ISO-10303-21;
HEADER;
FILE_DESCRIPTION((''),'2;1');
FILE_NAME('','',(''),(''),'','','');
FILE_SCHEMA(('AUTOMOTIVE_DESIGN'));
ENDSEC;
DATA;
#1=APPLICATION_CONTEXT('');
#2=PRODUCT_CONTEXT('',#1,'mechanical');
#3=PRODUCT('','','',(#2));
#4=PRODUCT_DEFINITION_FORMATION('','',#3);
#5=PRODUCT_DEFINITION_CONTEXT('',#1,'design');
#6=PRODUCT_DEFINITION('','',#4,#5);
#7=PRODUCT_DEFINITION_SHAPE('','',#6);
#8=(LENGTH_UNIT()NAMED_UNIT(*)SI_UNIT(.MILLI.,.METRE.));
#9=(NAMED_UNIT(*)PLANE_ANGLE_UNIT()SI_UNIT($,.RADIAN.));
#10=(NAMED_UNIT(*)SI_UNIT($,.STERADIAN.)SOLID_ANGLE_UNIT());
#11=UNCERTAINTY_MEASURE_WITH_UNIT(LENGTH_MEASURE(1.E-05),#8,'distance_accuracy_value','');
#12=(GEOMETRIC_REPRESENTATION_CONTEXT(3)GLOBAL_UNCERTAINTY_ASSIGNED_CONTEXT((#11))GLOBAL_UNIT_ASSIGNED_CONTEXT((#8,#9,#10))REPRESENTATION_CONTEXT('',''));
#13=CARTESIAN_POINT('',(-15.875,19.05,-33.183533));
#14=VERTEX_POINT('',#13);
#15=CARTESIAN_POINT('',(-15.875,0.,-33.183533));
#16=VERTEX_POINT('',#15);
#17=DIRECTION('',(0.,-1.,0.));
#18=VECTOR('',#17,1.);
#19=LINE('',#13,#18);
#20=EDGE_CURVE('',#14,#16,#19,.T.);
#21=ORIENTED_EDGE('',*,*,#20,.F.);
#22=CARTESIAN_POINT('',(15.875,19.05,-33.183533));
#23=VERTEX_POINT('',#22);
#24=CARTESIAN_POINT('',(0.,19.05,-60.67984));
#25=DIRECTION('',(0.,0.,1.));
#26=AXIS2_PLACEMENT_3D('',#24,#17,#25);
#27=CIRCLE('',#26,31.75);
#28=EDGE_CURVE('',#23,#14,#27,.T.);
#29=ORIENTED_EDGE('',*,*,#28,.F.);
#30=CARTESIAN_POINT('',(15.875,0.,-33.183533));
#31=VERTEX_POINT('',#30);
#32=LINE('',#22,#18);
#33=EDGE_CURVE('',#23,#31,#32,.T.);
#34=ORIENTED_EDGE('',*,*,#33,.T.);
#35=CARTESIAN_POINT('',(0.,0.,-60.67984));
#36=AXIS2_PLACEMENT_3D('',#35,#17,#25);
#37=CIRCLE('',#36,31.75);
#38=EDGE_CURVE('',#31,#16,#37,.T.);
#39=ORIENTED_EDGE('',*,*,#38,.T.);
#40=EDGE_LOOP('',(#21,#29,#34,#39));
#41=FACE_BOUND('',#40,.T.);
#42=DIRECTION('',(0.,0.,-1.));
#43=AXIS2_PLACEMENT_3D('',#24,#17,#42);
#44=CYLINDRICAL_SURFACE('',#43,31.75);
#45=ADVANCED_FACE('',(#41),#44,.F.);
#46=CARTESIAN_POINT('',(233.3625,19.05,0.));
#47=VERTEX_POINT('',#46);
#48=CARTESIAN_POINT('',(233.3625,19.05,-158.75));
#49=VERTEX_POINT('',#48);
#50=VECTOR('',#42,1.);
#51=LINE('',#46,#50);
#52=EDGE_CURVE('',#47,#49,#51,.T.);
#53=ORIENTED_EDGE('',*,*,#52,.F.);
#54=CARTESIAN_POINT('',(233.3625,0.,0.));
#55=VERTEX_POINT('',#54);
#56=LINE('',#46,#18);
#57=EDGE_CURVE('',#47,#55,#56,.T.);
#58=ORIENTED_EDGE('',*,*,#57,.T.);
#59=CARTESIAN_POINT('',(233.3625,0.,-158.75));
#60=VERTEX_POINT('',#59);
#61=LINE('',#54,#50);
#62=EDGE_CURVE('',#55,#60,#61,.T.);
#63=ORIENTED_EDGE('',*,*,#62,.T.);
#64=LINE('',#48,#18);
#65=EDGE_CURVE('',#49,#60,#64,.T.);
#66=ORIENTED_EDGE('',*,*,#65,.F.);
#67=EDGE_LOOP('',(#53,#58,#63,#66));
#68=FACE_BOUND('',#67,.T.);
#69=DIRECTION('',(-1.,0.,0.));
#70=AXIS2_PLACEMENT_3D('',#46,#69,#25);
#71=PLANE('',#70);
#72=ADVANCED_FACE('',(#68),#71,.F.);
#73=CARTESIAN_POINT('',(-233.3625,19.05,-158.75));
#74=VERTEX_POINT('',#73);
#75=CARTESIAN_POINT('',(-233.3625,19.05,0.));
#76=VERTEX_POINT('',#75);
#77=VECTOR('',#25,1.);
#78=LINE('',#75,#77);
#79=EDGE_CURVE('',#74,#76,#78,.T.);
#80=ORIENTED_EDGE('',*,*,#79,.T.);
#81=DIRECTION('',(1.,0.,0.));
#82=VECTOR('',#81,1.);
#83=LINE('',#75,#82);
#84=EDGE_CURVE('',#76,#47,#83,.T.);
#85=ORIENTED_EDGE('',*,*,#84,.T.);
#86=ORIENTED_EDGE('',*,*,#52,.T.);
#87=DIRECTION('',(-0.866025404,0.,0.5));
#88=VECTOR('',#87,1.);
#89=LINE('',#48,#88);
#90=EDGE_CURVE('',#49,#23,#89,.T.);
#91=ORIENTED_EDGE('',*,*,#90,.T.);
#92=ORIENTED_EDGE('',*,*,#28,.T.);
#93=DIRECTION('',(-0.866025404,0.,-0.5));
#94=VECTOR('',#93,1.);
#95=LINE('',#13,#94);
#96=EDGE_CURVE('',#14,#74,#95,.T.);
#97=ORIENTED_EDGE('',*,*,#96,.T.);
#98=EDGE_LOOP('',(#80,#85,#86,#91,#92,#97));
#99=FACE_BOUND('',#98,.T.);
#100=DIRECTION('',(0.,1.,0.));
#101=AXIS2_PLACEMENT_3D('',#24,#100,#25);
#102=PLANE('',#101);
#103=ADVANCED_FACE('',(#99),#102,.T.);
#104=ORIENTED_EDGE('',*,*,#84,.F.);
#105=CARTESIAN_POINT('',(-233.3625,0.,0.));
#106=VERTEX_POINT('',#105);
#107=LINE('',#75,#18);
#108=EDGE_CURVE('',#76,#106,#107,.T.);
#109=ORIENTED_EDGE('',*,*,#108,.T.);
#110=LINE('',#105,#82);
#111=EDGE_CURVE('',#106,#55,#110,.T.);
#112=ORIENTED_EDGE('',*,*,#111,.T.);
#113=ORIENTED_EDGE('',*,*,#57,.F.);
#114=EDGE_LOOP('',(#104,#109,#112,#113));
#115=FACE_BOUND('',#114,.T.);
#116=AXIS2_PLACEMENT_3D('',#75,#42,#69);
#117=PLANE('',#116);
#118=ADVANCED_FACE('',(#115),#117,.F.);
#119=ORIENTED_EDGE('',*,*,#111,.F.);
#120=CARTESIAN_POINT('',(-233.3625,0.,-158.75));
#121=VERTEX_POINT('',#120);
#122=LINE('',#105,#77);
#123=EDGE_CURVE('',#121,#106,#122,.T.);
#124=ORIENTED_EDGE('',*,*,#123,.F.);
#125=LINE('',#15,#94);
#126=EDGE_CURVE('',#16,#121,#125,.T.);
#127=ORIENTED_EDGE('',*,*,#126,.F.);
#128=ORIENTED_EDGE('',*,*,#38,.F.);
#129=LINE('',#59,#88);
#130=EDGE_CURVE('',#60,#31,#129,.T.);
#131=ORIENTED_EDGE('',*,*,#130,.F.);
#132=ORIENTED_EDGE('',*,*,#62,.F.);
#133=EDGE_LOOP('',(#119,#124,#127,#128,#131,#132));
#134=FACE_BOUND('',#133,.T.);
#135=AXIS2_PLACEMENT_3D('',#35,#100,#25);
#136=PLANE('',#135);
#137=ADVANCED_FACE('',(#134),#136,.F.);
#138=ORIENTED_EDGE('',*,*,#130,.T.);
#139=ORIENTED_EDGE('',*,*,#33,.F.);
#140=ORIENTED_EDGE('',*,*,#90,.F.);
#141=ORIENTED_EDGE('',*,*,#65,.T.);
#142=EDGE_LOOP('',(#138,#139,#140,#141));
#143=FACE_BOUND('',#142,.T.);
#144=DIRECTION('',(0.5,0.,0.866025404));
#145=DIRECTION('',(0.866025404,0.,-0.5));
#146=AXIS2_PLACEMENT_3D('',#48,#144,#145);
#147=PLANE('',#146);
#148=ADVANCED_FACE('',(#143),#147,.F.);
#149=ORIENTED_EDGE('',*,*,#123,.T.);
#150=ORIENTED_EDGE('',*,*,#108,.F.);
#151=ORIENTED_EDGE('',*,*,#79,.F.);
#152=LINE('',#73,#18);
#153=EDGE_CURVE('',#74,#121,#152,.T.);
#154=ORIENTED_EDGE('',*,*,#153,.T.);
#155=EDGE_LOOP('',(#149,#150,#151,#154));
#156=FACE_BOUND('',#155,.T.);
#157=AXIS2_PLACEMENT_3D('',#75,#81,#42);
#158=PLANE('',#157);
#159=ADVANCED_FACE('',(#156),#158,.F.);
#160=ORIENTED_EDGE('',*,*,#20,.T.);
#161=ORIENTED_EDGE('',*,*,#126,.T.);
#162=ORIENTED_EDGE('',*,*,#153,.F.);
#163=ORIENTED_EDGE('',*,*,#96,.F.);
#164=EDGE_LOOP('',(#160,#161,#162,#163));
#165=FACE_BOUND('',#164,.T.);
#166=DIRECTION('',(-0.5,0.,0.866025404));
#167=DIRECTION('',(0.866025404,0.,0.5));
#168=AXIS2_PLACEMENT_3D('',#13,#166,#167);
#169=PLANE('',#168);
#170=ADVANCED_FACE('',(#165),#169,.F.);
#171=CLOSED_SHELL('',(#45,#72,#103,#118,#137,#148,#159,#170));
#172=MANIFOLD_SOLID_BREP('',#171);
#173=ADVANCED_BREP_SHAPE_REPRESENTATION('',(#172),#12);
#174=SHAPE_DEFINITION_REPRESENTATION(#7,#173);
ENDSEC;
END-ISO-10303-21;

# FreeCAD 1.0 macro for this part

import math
import FreeCAD as App
import Part
import Sketcher

V = App.Vector
Q = App.Units.Quantity

doc = App.newDocument("Part")
body = doc.addObject("PartDesign::Body", "Body")

sketch1 = body.newObject("Sketcher::SketchObject", "Sketch")
sketch1.AttachmentSupport = (doc.getObject("XZ_Plane"), [""])
sketch1.MapMode = "FlatFace"
sketch1.addGeometry(Part.LineSegment(V(-233, 0, 0), V(233, 0, 0)), False)
sketch1.addGeometry(Part.LineSegment(V(233, 0, 0), V(233, -159, 0)), False)
sketch1.addGeometry(Part.LineSegment(V(233, -159, 0), V(16, -33, 0)), False)
sketch1.addGeometry(Part.ArcOfCircle(Part.Circle(V(0, -61, 0), V(0, 0, 1), 32), math.radians(60), math.radians(120)), False)
sketch1.addGeometry(Part.LineSegment(V(-16, -33, 0), V(-233, -159, 0)), False)
sketch1.addGeometry(Part.LineSegment(V(-233, -159, 0), V(-233, 0, 0)), False)
sketch1.addConstraint(Sketcher.Constraint("Coincident", 0, 2, 1, 1))
sketch1.addConstraint(Sketcher.Constraint("Coincident", 1, 2, 2, 1))
sketch1.addConstraint(Sketcher.Constraint("Tangent", 2, 2, 3, 1))
sketch1.addConstraint(Sketcher.Constraint("Tangent", 3, 2, 4, 1))
sketch1.addConstraint(Sketcher.Constraint("Coincident", 4, 2, 5, 1))
sketch1.addConstraint(Sketcher.Constraint("Coincident", 5, 2, 0, 1))
sketch1.addConstraint(Sketcher.Constraint("Horizontal", 0))
sketch1.addConstraint(Sketcher.Constraint("Vertical", 1))
sketch1.addConstraint(Sketcher.Constraint("Vertical", 5))
sketch1.addConstraint(Sketcher.Constraint("Symmetric", 0, 2, 5, 2, -1, 1))
sketch1.addConstraint(Sketcher.Constraint("Symmetric", 2, 2, 3, 2, -2))
sketch1.addConstraint(Sketcher.Constraint("Radius", 3, Q("1.25 in")))
sketch1.addConstraint(Sketcher.Constraint("Angle", 2, Q("150 deg")))
sketch1.addConstraint(Sketcher.Constraint("DistanceY", 1, 2, 1, 1, Q("6.25 in")))
sketch1.addConstraint(Sketcher.Constraint("DistanceX", 0, 1, 0, 2, Q("18.375 in")))
pad1 = body.newObject("PartDesign::Pad", "Pad")
pad1.Profile = sketch1
pad1.Length = Q("0.75 in")
pad1.Reversed = True

doc.recompute()
